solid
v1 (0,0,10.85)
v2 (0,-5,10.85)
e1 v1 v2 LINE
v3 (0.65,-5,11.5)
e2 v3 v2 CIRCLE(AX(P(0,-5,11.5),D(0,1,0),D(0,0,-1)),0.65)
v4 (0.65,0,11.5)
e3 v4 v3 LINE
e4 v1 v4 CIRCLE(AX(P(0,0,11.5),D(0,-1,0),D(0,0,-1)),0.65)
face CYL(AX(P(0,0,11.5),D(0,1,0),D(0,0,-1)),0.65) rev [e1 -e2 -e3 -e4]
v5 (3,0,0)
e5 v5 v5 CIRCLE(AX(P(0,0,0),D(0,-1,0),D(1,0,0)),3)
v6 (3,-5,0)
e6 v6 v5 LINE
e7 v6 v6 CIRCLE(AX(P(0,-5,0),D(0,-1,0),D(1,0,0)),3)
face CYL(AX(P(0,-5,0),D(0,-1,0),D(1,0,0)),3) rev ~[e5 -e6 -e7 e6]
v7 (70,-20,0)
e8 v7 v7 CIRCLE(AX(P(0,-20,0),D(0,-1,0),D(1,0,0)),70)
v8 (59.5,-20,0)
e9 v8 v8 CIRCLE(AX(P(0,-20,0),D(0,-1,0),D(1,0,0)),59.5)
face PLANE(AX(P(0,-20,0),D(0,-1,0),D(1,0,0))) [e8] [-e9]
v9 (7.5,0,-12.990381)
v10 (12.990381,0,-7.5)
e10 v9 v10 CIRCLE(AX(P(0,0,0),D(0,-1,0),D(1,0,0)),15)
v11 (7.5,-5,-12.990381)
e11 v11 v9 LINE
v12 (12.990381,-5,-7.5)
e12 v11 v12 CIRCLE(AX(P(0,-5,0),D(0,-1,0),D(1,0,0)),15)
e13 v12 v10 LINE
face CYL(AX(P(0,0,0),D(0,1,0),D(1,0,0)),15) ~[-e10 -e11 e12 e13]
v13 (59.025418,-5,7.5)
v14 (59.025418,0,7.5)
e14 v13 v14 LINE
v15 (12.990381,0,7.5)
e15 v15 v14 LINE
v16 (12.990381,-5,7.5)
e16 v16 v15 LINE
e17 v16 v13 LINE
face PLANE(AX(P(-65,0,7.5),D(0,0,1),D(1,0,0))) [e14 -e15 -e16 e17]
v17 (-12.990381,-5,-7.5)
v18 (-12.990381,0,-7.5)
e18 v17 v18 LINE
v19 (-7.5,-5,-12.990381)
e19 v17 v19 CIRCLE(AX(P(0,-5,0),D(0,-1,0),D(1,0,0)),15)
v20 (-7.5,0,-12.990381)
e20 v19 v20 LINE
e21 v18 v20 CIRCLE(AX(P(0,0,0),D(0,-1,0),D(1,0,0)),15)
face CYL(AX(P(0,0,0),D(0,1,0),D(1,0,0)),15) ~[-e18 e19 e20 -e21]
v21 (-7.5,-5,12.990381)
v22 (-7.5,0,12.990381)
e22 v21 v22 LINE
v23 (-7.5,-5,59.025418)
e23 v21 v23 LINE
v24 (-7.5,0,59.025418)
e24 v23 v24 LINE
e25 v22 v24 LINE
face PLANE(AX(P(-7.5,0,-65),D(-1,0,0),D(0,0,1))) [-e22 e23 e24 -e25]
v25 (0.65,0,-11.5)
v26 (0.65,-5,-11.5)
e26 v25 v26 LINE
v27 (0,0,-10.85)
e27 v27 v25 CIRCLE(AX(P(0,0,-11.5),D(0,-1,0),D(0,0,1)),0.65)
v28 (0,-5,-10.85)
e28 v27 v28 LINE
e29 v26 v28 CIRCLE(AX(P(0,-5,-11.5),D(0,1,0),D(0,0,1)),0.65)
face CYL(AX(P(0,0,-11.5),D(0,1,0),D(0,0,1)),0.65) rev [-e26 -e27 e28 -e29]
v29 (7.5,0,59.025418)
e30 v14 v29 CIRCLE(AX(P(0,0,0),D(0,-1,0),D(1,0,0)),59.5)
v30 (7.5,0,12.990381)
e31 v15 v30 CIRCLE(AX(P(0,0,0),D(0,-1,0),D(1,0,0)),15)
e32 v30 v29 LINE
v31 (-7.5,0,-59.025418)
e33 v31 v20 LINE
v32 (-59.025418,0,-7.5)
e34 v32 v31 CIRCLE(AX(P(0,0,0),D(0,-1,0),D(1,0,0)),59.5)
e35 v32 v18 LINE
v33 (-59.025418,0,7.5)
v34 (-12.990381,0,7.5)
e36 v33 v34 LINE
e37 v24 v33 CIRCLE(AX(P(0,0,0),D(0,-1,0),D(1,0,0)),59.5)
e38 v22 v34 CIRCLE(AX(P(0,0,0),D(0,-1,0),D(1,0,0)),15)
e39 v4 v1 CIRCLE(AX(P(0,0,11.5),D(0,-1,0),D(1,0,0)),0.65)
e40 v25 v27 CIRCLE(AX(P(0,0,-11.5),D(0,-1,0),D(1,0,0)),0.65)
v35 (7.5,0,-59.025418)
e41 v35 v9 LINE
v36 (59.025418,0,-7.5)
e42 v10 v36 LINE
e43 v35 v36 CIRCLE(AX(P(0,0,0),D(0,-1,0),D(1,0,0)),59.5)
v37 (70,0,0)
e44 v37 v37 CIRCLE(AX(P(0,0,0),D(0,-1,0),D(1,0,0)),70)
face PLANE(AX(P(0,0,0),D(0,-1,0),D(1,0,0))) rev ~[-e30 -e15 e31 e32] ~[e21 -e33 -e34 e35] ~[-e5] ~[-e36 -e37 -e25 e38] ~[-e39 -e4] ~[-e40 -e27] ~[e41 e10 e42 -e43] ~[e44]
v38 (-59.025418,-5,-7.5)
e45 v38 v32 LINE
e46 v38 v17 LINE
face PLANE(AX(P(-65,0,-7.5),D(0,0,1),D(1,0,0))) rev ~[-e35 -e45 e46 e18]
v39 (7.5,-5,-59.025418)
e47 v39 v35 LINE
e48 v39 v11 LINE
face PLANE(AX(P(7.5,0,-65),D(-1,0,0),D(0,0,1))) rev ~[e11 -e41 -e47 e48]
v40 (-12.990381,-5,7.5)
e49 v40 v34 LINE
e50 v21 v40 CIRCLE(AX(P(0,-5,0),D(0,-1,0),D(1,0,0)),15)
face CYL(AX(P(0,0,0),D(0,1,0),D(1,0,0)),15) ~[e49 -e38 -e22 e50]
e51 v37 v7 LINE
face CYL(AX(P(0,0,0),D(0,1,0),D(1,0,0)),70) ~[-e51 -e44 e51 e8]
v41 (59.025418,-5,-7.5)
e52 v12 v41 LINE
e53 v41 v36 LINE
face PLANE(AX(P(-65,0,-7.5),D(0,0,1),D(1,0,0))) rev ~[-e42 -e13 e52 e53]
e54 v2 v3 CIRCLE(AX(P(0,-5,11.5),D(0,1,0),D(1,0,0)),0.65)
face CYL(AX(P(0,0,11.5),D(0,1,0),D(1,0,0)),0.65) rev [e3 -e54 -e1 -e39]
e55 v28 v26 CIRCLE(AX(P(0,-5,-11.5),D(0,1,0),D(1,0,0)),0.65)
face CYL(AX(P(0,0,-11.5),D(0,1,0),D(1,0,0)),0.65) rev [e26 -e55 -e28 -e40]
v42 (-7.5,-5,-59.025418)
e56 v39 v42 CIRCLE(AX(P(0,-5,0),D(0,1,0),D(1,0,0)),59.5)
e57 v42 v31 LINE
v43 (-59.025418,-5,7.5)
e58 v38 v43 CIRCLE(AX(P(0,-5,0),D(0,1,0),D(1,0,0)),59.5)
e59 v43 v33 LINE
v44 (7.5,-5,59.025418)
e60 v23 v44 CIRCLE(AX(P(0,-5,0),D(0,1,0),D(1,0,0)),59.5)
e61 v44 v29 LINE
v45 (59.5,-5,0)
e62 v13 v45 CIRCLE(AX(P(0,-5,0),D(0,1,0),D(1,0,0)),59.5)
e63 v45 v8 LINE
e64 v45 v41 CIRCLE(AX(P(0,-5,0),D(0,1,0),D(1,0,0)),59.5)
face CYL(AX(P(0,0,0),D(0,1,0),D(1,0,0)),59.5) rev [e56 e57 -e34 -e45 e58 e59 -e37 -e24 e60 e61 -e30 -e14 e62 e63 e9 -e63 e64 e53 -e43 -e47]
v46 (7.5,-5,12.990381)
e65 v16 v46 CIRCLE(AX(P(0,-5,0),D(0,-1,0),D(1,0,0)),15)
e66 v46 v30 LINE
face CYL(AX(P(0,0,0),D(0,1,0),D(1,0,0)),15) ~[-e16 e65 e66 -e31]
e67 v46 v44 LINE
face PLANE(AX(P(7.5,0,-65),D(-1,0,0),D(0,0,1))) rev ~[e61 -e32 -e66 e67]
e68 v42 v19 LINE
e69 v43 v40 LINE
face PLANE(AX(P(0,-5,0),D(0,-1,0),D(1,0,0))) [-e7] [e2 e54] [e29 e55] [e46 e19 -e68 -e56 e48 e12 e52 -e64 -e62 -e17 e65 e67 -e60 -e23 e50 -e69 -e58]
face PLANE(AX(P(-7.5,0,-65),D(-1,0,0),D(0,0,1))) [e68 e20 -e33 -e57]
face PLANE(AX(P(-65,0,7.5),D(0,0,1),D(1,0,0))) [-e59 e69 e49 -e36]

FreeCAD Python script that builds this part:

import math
import FreeCAD as App
import Part
import Sketcher

doc = App.newDocument("Part")
body = doc.addObject("PartDesign::Body", "Body")

sketch1 = body.newObject("Sketcher::SketchObject", "Sketch")
sketch1.AttachmentSupport = (doc.getObject("XZ_Plane"), [""])
sketch1.MapMode = "FlatFace"
sketch1.addGeometry([
    Part.Circle(App.Vector(0, 0, 0), App.Vector(0, 0, 1), 70),
    Part.Circle(App.Vector(0, 0, 0), App.Vector(0, 0, 1), 60),
], False)
sketch1.addConstraint([
    Sketcher.Constraint("Coincident", 0, 3, -1, 1),
    Sketcher.Constraint("Coincident", 1, 3, -1, 1),
    Sketcher.Constraint("Diameter", 0, 140.0),
    Sketcher.Constraint("Diameter", 1, 119.0),
])
pad1 = body.newObject("PartDesign::Pad", "Pad")
pad1.Profile = sketch1
pad1.Length = 20
body2 = doc.addObject("PartDesign::Body", "Body001")

sketch2 = body2.newObject("Sketcher::SketchObject", "Sketch001")
sketch2.AttachmentSupport = (doc.getObject("XZ_Plane001"), [""])
sketch2.MapMode = "FlatFace"
sketch2.addGeometry(Part.Circle(App.Vector(0, 0, 0), App.Vector(0, 0, 1), 15), False)
sketch2.addConstraint([
    Sketcher.Constraint("Coincident", 0, 3, -1, 1),
    Sketcher.Constraint("Diameter", 0, 30.0),
])
pad2 = body2.newObject("PartDesign::Pad", "Pad001")
pad2.Profile = sketch2
pad2.Length = 5
body3 = doc.addObject("PartDesign::Body", "Body002")

sketch3 = body3.newObject("Sketcher::SketchObject", "Sketch002")
sketch3.AttachmentSupport = (doc.getObject("XZ_Plane002"), [""])
sketch3.MapMode = "FlatFace"
sketch3.addGeometry([
    Part.LineSegment(App.Vector(-65, 8, 0), App.Vector(-65, -8, 0)),
    Part.LineSegment(App.Vector(-65, -8, 0), App.Vector(65, -8, 0)),
    Part.LineSegment(App.Vector(65, -8, 0), App.Vector(65, 8, 0)),
    Part.LineSegment(App.Vector(65, 8, 0), App.Vector(-65, 8, 0)),
], False)
sketch3.addConstraint([
    Sketcher.Constraint("Coincident", 0, 2, 1, 1),
    Sketcher.Constraint("Coincident", 1, 2, 2, 1),
    Sketcher.Constraint("Coincident", 2, 2, 3, 1),
    Sketcher.Constraint("Coincident", 3, 2, 0, 1),
    Sketcher.Constraint("Vertical", 0),
    Sketcher.Constraint("Horizontal", 1),
    Sketcher.Constraint("Vertical", 2),
    Sketcher.Constraint("Horizontal", 3),
    Sketcher.Constraint("Symmetric", 0, 2, 2, 2, -1, 1),
    Sketcher.Constraint("DistanceX", 1, 1, 1, 2, 130.0),
    Sketcher.Constraint("DistanceY", 0, 2, 0, 1, 15.0),
])
pad3 = body3.newObject("PartDesign::Pad", "Pad002")
pad3.Profile = sketch3
pad3.Length = 5
body4 = doc.addObject("PartDesign::Body", "Body003")

sketch4 = body4.newObject("Sketcher::SketchObject", "Sketch003")
sketch4.AttachmentSupport = (doc.getObject("XZ_Plane003"), [""])
sketch4.MapMode = "FlatFace"
sketch4.addGeometry([
    Part.LineSegment(App.Vector(-8, 65, 0), App.Vector(-8, -65, 0)),
    Part.LineSegment(App.Vector(-8, -65, 0), App.Vector(8, -65, 0)),
    Part.LineSegment(App.Vector(8, -65, 0), App.Vector(8, 65, 0)),
    Part.LineSegment(App.Vector(8, 65, 0), App.Vector(-8, 65, 0)),
], False)
sketch4.addConstraint([
    Sketcher.Constraint("Coincident", 0, 2, 1, 1),
    Sketcher.Constraint("Coincident", 1, 2, 2, 1),
    Sketcher.Constraint("Coincident", 2, 2, 3, 1),
    Sketcher.Constraint("Coincident", 3, 2, 0, 1),
    Sketcher.Constraint("Vertical", 0),
    Sketcher.Constraint("Horizontal", 1),
    Sketcher.Constraint("Vertical", 2),
    Sketcher.Constraint("Horizontal", 3),
    Sketcher.Constraint("Symmetric", 0, 2, 2, 2, -1, 1),
    Sketcher.Constraint("DistanceX", 1, 1, 1, 2, 15.0),
    Sketcher.Constraint("DistanceY", 0, 2, 0, 1, 130.0),
])
pad4 = body4.newObject("PartDesign::Pad", "Pad003")
pad4.Profile = sketch4
pad4.Length = 5
body.AllowCompound = True
doc.recompute()

boolean = body.newObject("PartDesign::Boolean", "Boolean")
boolean.Type = "Fuse"
boolean.addObjects([body2])
doc.recompute()

boolean2 = body.newObject("PartDesign::Boolean", "Boolean001")
boolean2.Type = "Fuse"
boolean2.addObjects([body3])
doc.recompute()

boolean3 = body.newObject("PartDesign::Boolean", "Boolean002")
boolean3.Type = "Fuse"
boolean3.addObjects([body4])

sketch5 = body.newObject("Sketcher::SketchObject", "Sketch004")
sketch5.AttachmentSupport = (doc.getObject("XZ_Plane"), [""])
sketch5.MapMode = "FlatFace"
sketch5.AttachmentOffset = App.Placement(App.Vector(0, 0, 5), App.Rotation())
sketch5.addGeometry(Part.Circle(App.Vector(0, 0, 0), App.Vector(0, 0, 1), 3), False)
sketch5.addConstraint([
    Sketcher.Constraint("Coincident", 0, 3, -1, 1),
    Sketcher.Constraint("Diameter", 0, 6.0),
])
pocket1 = body.newObject("PartDesign::Pocket", "Pocket")
pocket1.Profile = sketch5
pocket1.Type = "ThroughAll"

sketch6 = body.newObject("Sketcher::SketchObject", "Sketch005")
sketch6.AttachmentSupport = (doc.getObject("XZ_Plane"), [""])
sketch6.MapMode = "FlatFace"
sketch6.addGeometry([
    Part.ArcOfCircle(Part.Circle(App.Vector(0, -11.5, 0), App.Vector(0, 0, 1), 0.7), math.radians(0), math.radians(90)),
    Part.ArcOfCircle(Part.Circle(App.Vector(0, -11.5, 0), App.Vector(0, 0, 1), 0.7), math.radians(90), math.radians(360)),
    Part.ArcOfCircle(Part.Circle(App.Vector(0, 11.5, 0), App.Vector(0, 0, 1), 0.7), math.radians(0), math.radians(270)),
    Part.ArcOfCircle(Part.Circle(App.Vector(0, 11.5, 0), App.Vector(0, 0, 1), 0.7), math.radians(-90), math.radians(0)),
], False)
sketch6.addConstraint([
    Sketcher.Constraint("Tangent", 0, 1, 1, 2),
    Sketcher.Constraint("Coincident", 1, 1, 0, 2),
    Sketcher.Constraint("Tangent", 2, 1, 3, 2),
    Sketcher.Constraint("Coincident", 3, 1, 2, 2),
    Sketcher.Constraint("Equal", 1, 2),
    Sketcher.Constraint("Symmetric", 0, 3, 2, 3, -1, 1),
    Sketcher.Constraint("Symmetric", 0, 1, 2, 1, -1),
    Sketcher.Constraint("PointOnObject", 1, 1, -2),
    Sketcher.Constraint("PointOnObject", 3, 1, -2),
    Sketcher.Constraint("Horizontal", 1, 3, 0, 1),
    Sketcher.Constraint("Radius", 0, 0.65),
    Sketcher.Constraint("DistanceY", 0, 3, 2, 3, 23.0),
])
pocket2 = body.newObject("PartDesign::Pocket", "Pocket001")
pocket2.Profile = sketch6
pocket2.Length = 25
pocket2.Reversed = True

doc.recompute()
